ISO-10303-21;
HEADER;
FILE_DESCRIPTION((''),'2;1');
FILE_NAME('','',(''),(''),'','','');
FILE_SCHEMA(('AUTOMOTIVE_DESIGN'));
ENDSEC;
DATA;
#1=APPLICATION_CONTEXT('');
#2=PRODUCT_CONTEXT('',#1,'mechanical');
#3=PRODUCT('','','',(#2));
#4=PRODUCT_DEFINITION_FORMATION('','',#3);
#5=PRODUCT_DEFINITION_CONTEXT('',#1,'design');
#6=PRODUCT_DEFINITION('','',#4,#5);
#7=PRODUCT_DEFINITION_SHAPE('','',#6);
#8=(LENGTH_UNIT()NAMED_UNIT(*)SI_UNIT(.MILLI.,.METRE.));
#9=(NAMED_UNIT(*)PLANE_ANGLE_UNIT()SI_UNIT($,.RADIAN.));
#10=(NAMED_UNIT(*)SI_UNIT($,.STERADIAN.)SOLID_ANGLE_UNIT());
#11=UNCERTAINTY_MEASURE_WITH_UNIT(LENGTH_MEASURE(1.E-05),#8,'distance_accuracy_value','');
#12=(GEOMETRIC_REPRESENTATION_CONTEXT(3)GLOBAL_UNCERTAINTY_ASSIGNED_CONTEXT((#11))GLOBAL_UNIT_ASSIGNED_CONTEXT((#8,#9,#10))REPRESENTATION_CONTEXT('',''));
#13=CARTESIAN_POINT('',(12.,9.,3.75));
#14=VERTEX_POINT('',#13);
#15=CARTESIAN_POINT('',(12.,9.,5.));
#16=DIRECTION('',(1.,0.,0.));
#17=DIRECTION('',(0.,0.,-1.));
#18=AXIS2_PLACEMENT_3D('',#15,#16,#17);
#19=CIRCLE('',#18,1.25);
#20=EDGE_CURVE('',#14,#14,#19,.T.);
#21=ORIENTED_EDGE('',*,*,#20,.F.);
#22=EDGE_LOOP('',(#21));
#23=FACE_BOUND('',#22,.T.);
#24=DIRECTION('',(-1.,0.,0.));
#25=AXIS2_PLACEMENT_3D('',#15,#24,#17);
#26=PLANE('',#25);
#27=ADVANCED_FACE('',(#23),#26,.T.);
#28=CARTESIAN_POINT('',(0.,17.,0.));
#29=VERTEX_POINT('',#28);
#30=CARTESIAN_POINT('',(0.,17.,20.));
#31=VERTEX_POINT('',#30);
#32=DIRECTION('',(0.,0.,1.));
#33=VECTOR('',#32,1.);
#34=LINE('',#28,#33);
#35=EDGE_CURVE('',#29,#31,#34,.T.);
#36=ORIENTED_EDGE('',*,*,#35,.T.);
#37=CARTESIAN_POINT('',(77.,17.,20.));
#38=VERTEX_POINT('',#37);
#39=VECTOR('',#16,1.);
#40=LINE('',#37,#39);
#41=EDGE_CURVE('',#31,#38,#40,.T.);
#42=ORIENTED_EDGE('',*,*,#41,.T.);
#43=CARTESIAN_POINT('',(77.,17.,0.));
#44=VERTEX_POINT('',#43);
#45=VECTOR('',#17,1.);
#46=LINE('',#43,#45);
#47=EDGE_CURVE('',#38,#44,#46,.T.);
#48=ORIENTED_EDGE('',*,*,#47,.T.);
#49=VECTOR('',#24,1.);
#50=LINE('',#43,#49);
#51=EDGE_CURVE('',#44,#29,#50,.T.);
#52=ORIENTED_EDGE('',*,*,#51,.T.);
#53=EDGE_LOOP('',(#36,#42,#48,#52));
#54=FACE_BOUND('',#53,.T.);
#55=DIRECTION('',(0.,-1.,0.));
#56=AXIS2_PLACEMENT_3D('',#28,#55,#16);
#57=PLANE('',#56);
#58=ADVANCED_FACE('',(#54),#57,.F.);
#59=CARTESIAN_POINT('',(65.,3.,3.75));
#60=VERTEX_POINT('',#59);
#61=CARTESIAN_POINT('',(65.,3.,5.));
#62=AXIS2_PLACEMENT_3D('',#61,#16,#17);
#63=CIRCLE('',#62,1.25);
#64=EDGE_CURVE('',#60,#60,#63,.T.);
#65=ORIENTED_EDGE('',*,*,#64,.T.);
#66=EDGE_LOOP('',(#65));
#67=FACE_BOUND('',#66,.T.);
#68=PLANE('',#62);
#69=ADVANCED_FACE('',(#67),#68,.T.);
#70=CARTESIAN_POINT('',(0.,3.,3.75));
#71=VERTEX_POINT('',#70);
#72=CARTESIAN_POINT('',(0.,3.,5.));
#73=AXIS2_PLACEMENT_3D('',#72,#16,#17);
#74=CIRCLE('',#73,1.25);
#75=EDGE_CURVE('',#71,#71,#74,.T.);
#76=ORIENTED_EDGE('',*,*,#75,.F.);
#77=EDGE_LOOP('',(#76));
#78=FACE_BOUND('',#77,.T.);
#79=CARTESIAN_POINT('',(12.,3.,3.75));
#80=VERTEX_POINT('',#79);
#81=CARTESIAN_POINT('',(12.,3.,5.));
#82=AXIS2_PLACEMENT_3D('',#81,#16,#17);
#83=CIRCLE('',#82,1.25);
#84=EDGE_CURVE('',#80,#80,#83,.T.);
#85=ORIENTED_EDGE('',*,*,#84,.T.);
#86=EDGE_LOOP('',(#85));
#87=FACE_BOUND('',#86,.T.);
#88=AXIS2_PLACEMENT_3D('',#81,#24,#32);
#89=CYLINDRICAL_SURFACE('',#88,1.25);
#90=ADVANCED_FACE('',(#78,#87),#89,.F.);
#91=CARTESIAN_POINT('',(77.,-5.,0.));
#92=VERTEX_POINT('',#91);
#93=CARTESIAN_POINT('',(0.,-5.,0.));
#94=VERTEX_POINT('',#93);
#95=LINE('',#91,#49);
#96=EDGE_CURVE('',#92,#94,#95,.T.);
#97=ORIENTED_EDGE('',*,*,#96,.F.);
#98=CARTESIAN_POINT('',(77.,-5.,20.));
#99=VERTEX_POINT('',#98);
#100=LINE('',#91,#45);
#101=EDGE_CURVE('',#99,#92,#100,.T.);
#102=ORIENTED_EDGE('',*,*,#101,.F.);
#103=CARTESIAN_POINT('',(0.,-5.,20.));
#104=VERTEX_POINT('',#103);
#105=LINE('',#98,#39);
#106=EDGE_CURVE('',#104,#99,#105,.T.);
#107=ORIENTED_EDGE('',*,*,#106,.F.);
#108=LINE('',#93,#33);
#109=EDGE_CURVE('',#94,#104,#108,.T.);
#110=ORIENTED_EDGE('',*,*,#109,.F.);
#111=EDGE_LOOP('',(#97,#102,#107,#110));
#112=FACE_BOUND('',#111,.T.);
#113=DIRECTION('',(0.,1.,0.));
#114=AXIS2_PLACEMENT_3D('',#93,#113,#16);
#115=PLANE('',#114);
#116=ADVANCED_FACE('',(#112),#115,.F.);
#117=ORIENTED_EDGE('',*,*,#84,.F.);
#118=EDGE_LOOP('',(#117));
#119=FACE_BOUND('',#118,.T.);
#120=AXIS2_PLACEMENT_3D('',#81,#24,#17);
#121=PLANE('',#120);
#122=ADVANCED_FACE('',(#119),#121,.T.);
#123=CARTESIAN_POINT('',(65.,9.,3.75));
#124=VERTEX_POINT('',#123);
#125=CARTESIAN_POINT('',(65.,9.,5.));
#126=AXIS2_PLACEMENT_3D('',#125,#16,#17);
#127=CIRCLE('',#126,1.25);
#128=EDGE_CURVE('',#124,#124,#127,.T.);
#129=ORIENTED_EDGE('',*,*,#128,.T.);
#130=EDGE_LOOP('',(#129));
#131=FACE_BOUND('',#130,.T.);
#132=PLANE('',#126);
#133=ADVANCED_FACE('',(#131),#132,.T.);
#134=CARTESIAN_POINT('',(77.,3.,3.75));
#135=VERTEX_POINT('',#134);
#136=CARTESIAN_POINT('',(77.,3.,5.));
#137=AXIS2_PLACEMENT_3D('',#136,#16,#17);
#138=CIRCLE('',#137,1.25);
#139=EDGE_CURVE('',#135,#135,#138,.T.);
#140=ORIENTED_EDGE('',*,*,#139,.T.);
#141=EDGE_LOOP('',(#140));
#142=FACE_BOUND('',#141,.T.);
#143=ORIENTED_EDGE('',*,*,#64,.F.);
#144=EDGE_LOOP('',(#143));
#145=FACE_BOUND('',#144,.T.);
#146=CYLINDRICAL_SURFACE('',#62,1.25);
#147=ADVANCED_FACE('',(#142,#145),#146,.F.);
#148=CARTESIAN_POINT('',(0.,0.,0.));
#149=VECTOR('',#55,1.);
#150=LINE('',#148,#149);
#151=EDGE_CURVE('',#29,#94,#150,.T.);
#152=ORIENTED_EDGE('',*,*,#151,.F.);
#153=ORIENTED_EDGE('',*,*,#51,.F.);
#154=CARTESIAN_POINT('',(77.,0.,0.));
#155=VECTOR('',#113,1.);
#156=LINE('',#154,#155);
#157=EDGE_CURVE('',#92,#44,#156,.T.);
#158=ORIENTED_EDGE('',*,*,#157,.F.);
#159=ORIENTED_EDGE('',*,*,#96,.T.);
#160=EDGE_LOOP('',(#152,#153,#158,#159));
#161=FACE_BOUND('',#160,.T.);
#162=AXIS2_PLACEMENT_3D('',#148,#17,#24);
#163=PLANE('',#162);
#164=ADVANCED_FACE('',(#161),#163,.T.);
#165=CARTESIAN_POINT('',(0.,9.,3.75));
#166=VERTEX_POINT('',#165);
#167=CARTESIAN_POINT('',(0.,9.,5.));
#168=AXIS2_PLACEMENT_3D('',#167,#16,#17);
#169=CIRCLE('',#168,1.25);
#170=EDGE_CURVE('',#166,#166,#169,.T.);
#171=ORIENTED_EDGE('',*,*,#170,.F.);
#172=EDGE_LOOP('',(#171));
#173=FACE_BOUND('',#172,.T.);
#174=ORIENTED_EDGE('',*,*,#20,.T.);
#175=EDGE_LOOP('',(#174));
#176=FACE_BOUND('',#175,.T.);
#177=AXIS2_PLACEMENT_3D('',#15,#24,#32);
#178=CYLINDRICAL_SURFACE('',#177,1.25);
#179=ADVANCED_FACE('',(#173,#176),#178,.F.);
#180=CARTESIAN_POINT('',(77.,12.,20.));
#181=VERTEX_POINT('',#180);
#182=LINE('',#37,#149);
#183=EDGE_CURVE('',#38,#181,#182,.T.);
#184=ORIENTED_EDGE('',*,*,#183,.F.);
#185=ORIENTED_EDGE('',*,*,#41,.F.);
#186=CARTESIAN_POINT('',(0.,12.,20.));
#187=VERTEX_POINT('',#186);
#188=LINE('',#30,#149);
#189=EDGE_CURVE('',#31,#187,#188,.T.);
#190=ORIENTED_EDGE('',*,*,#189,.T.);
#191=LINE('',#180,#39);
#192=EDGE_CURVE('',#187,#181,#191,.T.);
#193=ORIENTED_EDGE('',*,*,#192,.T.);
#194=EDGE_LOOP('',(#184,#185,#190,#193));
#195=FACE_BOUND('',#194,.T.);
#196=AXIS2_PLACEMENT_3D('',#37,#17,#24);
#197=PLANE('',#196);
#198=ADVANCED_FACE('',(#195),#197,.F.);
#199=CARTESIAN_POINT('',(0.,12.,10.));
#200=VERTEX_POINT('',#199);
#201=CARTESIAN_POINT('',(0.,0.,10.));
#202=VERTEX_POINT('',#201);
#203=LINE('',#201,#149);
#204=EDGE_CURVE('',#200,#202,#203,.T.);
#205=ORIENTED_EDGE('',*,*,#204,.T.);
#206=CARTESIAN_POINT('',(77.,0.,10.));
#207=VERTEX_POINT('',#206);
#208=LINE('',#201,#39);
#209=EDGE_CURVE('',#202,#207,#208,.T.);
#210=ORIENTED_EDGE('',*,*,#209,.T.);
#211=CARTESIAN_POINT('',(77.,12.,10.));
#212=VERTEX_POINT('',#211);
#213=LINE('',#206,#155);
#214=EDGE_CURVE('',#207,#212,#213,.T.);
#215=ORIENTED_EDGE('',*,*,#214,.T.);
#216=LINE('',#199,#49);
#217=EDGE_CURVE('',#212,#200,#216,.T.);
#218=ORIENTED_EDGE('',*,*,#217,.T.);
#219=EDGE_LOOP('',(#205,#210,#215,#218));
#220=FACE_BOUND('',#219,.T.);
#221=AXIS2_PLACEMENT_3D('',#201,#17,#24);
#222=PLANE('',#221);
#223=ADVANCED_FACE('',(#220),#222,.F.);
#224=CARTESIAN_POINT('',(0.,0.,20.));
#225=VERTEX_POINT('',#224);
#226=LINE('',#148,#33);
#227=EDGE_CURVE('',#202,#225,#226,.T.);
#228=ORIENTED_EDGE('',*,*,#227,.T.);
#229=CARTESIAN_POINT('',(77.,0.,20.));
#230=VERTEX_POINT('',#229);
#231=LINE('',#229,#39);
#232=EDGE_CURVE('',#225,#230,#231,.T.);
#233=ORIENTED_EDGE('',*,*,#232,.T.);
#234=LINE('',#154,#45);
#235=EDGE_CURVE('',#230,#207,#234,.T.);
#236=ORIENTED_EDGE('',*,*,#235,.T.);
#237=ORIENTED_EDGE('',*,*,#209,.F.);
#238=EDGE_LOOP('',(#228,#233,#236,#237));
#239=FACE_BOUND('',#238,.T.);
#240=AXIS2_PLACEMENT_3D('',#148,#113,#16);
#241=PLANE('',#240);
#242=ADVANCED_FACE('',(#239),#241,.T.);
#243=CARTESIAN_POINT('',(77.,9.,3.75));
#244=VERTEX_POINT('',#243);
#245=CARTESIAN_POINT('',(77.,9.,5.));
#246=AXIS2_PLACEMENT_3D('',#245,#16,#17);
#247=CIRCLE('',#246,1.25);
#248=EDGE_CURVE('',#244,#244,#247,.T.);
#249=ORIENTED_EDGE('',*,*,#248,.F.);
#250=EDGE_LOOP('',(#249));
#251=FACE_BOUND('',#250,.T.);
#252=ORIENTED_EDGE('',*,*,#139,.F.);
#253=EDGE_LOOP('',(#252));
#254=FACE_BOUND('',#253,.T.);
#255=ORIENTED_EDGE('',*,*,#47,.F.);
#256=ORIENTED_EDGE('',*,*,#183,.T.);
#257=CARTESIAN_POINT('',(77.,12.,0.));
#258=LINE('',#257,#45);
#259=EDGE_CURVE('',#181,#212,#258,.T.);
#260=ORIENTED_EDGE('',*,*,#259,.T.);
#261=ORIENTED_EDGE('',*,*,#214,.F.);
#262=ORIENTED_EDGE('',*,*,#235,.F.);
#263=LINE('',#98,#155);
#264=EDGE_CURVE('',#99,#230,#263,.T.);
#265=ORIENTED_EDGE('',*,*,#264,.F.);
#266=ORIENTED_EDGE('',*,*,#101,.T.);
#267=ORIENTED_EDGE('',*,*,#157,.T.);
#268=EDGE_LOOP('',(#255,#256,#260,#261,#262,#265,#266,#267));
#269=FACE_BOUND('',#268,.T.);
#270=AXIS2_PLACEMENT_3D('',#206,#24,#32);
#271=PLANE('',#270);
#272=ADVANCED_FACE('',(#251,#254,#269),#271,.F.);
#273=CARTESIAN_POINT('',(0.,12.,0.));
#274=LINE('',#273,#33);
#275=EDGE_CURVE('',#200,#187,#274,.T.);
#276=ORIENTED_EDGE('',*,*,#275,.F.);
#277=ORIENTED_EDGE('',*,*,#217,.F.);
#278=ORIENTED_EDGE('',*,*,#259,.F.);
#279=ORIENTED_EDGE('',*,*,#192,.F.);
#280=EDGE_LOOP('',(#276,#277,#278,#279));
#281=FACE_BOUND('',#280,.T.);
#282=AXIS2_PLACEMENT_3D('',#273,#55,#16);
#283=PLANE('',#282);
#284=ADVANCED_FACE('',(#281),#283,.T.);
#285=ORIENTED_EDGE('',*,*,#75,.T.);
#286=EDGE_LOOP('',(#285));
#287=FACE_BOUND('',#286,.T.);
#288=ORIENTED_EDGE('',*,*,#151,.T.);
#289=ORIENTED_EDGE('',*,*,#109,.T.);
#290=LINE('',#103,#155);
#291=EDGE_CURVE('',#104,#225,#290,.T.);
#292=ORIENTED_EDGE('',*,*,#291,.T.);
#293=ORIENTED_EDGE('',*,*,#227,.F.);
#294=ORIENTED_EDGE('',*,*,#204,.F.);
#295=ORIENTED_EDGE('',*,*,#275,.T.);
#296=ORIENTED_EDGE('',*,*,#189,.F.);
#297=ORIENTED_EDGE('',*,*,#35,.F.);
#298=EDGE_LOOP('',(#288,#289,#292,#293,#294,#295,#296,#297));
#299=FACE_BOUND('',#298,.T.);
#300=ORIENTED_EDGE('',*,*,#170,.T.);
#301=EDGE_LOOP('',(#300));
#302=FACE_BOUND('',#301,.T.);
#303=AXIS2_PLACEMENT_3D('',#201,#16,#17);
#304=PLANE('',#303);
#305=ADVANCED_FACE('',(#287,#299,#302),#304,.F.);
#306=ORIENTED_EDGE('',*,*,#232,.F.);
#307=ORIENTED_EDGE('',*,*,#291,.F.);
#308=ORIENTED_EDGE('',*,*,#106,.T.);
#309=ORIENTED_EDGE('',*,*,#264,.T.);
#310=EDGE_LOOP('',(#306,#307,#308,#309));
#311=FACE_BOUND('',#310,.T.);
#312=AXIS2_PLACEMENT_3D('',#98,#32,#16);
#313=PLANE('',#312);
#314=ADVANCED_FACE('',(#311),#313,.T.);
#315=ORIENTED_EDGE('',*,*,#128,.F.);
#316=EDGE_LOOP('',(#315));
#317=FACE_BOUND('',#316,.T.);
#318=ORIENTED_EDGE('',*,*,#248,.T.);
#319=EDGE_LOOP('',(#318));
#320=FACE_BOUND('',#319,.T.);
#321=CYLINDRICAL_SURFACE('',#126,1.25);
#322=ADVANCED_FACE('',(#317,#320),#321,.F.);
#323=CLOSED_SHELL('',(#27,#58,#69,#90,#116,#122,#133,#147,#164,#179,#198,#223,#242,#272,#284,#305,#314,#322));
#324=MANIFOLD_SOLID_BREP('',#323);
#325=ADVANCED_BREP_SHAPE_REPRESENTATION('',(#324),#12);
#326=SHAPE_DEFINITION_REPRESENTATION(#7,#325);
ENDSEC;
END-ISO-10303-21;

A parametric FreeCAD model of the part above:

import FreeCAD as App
import Part
import Sketcher
from FreeCAD import Vector
Q = App.Units.Quantity


def add_polygon(sketch, points):
    """Adds a closed chain of lines whose ends are joined by coincident constraints."""
    first, n = sketch.GeometryCount, len(points)
    for a, b in zip(points, points[1:] + points[:1]):
        sketch.addGeometry(Part.LineSegment(App.Vector(*a, 0), App.Vector(*b, 0)), False)
    for i in range(n):
        sketch.addConstraint(Sketcher.Constraint("Coincident", first + i, 2, first + (i + 1) % n, 1))

doc = App.newDocument("Part")
body = doc.addObject("PartDesign::Body", "Body")

# Sketch on XY plane
sketch1 = doc.addObject("Sketcher::SketchObject", "Sketch")
body.addObject(sketch1)
sketch1.AttachmentSupport = (doc.XY_Plane, [""])
sketch1.MapMode = "FlatFace"
add_polygon(sketch1, [(0, 12), (0, 0), (77, 0), (77, 12)])  # lines 0-3
sketch1.addConstraint(Sketcher.Constraint("Vertical", 0))
sketch1.addConstraint(Sketcher.Constraint("Horizontal", 1))
sketch1.addConstraint(Sketcher.Constraint("Vertical", 2))
sketch1.addConstraint(Sketcher.Constraint("Horizontal", 3))
sketch1.addConstraint(Sketcher.Constraint("Coincident", 0, 2, -1, 1))
sketch1.addConstraint(Sketcher.Constraint("DistanceX", 1, 1, 1, 2, Q("77 mm")))
sketch1.addConstraint(Sketcher.Constraint("DistanceY", 0, 2, 0, 1, Q("12 mm")))
pad1 = doc.addObject("PartDesign::Pad", "Pad")
body.addObject(pad1)
pad1.Profile = sketch1
pad1.Length = 10

# Sketch on YZ plane
sketch2 = doc.addObject("Sketcher::SketchObject", "Sketch001")
body.addObject(sketch2)
sketch2.AttachmentSupport = (doc.YZ_Plane, [""])
sketch2.MapMode = "FlatFace"
sketch2.AttachmentOffset = App.Placement(Vector(0, 0, 77), App.Rotation())
sketch2.addGeometry(Part.Circle(Vector(3, 5, 0), Vector(0, 0, 1), 1.25), False)
sketch2.addGeometry(Part.Circle(Vector(9, 5, 0), Vector(0, 0, 1), 1.25), False)
sketch2.addConstraint(Sketcher.Constraint("Equal", 0, 1))
sketch2.addConstraint(Sketcher.Constraint("Horizontal", 0, 3, 1, 3))
sketch2.addConstraint(Sketcher.Constraint("Diameter", 0, Q("2.5 mm")))
sketch2.addConstraint(Sketcher.Constraint("DistanceX", -1, 1, 0, 3, Q("3 mm")))
sketch2.addConstraint(Sketcher.Constraint("DistanceY", -1, 1, 0, 3, Q("5 mm")))
sketch2.addConstraint(Sketcher.Constraint("DistanceX", -1, 1, 1, 3, Q("9 mm")))
pocket1 = doc.addObject("PartDesign::Pocket", "Pocket")
body.addObject(pocket1)
pocket1.Profile = sketch2
pocket1.Length = 12
doc.recompute()

datumplane = doc.addObject("PartDesign::Plane", "DatumPlane")
body.addObject(datumplane)
datumplane.AttachmentSupport = (doc.YZ_Plane, [""])
datumplane.MapMode = "FlatFace"
datumplane.AttachmentOffset = App.Placement(Vector(0, 0, 38.5), App.Rotation())
mirrored = doc.addObject("PartDesign::Mirrored", "Mirrored")
body.addObject(mirrored)
mirrored.Originals = [pocket1]
mirrored.MirrorPlane = (datumplane, [""])
body.Tip = mirrored

# Sketch on XZ plane
sketch3 = doc.addObject("Sketcher::SketchObject", "Sketch002")
body.addObject(sketch3)
sketch3.AttachmentSupport = (doc.XZ_Plane, [""])
sketch3.MapMode = "FlatFace"
sketch3.AttachmentOffset = App.Placement(Vector(0, 0, -12), App.Rotation())
add_polygon(sketch3, [(0, 0), (0, 20), (77, 20), (77, 0)])  # lines 0-3
sketch3.addConstraint(Sketcher.Constraint("Vertical", 0))
sketch3.addConstraint(Sketcher.Constraint("Horizontal", 1))
sketch3.addConstraint(Sketcher.Constraint("Vertical", 2))
sketch3.addConstraint(Sketcher.Constraint("Horizontal", 3))
sketch3.addConstraint(Sketcher.Constraint("Coincident", 3, 2, -1, 1))
sketch3.addConstraint(Sketcher.Constraint("DistanceX", 1, 1, 1, 2, Q("77 mm")))
sketch3.addConstraint(Sketcher.Constraint("DistanceY", 0, 1, 0, 2, Q("20 mm")))
pad2 = doc.addObject("PartDesign::Pad", "Pad001")
body.addObject(pad2)
pad2.Profile = sketch3
pad2.Length = 5
pad2.Reversed = True
doc.recompute()

datumplane2 = doc.addObject("PartDesign::Plane", "DatumPlane001")
body.addObject(datumplane2)
datumplane2.AttachmentSupport = (doc.XZ_Plane, [""])
datumplane2.MapMode = "FlatFace"
datumplane2.AttachmentOffset = App.Placement(Vector(0, 0, -6), App.Rotation())
mirrored2 = doc.addObject("PartDesign::Mirrored", "Mirrored001")
body.addObject(mirrored2)
mirrored2.Originals = [pad2]
mirrored2.MirrorPlane = (datumplane2, [""])
body.Tip = mirrored2

doc.recompute()
